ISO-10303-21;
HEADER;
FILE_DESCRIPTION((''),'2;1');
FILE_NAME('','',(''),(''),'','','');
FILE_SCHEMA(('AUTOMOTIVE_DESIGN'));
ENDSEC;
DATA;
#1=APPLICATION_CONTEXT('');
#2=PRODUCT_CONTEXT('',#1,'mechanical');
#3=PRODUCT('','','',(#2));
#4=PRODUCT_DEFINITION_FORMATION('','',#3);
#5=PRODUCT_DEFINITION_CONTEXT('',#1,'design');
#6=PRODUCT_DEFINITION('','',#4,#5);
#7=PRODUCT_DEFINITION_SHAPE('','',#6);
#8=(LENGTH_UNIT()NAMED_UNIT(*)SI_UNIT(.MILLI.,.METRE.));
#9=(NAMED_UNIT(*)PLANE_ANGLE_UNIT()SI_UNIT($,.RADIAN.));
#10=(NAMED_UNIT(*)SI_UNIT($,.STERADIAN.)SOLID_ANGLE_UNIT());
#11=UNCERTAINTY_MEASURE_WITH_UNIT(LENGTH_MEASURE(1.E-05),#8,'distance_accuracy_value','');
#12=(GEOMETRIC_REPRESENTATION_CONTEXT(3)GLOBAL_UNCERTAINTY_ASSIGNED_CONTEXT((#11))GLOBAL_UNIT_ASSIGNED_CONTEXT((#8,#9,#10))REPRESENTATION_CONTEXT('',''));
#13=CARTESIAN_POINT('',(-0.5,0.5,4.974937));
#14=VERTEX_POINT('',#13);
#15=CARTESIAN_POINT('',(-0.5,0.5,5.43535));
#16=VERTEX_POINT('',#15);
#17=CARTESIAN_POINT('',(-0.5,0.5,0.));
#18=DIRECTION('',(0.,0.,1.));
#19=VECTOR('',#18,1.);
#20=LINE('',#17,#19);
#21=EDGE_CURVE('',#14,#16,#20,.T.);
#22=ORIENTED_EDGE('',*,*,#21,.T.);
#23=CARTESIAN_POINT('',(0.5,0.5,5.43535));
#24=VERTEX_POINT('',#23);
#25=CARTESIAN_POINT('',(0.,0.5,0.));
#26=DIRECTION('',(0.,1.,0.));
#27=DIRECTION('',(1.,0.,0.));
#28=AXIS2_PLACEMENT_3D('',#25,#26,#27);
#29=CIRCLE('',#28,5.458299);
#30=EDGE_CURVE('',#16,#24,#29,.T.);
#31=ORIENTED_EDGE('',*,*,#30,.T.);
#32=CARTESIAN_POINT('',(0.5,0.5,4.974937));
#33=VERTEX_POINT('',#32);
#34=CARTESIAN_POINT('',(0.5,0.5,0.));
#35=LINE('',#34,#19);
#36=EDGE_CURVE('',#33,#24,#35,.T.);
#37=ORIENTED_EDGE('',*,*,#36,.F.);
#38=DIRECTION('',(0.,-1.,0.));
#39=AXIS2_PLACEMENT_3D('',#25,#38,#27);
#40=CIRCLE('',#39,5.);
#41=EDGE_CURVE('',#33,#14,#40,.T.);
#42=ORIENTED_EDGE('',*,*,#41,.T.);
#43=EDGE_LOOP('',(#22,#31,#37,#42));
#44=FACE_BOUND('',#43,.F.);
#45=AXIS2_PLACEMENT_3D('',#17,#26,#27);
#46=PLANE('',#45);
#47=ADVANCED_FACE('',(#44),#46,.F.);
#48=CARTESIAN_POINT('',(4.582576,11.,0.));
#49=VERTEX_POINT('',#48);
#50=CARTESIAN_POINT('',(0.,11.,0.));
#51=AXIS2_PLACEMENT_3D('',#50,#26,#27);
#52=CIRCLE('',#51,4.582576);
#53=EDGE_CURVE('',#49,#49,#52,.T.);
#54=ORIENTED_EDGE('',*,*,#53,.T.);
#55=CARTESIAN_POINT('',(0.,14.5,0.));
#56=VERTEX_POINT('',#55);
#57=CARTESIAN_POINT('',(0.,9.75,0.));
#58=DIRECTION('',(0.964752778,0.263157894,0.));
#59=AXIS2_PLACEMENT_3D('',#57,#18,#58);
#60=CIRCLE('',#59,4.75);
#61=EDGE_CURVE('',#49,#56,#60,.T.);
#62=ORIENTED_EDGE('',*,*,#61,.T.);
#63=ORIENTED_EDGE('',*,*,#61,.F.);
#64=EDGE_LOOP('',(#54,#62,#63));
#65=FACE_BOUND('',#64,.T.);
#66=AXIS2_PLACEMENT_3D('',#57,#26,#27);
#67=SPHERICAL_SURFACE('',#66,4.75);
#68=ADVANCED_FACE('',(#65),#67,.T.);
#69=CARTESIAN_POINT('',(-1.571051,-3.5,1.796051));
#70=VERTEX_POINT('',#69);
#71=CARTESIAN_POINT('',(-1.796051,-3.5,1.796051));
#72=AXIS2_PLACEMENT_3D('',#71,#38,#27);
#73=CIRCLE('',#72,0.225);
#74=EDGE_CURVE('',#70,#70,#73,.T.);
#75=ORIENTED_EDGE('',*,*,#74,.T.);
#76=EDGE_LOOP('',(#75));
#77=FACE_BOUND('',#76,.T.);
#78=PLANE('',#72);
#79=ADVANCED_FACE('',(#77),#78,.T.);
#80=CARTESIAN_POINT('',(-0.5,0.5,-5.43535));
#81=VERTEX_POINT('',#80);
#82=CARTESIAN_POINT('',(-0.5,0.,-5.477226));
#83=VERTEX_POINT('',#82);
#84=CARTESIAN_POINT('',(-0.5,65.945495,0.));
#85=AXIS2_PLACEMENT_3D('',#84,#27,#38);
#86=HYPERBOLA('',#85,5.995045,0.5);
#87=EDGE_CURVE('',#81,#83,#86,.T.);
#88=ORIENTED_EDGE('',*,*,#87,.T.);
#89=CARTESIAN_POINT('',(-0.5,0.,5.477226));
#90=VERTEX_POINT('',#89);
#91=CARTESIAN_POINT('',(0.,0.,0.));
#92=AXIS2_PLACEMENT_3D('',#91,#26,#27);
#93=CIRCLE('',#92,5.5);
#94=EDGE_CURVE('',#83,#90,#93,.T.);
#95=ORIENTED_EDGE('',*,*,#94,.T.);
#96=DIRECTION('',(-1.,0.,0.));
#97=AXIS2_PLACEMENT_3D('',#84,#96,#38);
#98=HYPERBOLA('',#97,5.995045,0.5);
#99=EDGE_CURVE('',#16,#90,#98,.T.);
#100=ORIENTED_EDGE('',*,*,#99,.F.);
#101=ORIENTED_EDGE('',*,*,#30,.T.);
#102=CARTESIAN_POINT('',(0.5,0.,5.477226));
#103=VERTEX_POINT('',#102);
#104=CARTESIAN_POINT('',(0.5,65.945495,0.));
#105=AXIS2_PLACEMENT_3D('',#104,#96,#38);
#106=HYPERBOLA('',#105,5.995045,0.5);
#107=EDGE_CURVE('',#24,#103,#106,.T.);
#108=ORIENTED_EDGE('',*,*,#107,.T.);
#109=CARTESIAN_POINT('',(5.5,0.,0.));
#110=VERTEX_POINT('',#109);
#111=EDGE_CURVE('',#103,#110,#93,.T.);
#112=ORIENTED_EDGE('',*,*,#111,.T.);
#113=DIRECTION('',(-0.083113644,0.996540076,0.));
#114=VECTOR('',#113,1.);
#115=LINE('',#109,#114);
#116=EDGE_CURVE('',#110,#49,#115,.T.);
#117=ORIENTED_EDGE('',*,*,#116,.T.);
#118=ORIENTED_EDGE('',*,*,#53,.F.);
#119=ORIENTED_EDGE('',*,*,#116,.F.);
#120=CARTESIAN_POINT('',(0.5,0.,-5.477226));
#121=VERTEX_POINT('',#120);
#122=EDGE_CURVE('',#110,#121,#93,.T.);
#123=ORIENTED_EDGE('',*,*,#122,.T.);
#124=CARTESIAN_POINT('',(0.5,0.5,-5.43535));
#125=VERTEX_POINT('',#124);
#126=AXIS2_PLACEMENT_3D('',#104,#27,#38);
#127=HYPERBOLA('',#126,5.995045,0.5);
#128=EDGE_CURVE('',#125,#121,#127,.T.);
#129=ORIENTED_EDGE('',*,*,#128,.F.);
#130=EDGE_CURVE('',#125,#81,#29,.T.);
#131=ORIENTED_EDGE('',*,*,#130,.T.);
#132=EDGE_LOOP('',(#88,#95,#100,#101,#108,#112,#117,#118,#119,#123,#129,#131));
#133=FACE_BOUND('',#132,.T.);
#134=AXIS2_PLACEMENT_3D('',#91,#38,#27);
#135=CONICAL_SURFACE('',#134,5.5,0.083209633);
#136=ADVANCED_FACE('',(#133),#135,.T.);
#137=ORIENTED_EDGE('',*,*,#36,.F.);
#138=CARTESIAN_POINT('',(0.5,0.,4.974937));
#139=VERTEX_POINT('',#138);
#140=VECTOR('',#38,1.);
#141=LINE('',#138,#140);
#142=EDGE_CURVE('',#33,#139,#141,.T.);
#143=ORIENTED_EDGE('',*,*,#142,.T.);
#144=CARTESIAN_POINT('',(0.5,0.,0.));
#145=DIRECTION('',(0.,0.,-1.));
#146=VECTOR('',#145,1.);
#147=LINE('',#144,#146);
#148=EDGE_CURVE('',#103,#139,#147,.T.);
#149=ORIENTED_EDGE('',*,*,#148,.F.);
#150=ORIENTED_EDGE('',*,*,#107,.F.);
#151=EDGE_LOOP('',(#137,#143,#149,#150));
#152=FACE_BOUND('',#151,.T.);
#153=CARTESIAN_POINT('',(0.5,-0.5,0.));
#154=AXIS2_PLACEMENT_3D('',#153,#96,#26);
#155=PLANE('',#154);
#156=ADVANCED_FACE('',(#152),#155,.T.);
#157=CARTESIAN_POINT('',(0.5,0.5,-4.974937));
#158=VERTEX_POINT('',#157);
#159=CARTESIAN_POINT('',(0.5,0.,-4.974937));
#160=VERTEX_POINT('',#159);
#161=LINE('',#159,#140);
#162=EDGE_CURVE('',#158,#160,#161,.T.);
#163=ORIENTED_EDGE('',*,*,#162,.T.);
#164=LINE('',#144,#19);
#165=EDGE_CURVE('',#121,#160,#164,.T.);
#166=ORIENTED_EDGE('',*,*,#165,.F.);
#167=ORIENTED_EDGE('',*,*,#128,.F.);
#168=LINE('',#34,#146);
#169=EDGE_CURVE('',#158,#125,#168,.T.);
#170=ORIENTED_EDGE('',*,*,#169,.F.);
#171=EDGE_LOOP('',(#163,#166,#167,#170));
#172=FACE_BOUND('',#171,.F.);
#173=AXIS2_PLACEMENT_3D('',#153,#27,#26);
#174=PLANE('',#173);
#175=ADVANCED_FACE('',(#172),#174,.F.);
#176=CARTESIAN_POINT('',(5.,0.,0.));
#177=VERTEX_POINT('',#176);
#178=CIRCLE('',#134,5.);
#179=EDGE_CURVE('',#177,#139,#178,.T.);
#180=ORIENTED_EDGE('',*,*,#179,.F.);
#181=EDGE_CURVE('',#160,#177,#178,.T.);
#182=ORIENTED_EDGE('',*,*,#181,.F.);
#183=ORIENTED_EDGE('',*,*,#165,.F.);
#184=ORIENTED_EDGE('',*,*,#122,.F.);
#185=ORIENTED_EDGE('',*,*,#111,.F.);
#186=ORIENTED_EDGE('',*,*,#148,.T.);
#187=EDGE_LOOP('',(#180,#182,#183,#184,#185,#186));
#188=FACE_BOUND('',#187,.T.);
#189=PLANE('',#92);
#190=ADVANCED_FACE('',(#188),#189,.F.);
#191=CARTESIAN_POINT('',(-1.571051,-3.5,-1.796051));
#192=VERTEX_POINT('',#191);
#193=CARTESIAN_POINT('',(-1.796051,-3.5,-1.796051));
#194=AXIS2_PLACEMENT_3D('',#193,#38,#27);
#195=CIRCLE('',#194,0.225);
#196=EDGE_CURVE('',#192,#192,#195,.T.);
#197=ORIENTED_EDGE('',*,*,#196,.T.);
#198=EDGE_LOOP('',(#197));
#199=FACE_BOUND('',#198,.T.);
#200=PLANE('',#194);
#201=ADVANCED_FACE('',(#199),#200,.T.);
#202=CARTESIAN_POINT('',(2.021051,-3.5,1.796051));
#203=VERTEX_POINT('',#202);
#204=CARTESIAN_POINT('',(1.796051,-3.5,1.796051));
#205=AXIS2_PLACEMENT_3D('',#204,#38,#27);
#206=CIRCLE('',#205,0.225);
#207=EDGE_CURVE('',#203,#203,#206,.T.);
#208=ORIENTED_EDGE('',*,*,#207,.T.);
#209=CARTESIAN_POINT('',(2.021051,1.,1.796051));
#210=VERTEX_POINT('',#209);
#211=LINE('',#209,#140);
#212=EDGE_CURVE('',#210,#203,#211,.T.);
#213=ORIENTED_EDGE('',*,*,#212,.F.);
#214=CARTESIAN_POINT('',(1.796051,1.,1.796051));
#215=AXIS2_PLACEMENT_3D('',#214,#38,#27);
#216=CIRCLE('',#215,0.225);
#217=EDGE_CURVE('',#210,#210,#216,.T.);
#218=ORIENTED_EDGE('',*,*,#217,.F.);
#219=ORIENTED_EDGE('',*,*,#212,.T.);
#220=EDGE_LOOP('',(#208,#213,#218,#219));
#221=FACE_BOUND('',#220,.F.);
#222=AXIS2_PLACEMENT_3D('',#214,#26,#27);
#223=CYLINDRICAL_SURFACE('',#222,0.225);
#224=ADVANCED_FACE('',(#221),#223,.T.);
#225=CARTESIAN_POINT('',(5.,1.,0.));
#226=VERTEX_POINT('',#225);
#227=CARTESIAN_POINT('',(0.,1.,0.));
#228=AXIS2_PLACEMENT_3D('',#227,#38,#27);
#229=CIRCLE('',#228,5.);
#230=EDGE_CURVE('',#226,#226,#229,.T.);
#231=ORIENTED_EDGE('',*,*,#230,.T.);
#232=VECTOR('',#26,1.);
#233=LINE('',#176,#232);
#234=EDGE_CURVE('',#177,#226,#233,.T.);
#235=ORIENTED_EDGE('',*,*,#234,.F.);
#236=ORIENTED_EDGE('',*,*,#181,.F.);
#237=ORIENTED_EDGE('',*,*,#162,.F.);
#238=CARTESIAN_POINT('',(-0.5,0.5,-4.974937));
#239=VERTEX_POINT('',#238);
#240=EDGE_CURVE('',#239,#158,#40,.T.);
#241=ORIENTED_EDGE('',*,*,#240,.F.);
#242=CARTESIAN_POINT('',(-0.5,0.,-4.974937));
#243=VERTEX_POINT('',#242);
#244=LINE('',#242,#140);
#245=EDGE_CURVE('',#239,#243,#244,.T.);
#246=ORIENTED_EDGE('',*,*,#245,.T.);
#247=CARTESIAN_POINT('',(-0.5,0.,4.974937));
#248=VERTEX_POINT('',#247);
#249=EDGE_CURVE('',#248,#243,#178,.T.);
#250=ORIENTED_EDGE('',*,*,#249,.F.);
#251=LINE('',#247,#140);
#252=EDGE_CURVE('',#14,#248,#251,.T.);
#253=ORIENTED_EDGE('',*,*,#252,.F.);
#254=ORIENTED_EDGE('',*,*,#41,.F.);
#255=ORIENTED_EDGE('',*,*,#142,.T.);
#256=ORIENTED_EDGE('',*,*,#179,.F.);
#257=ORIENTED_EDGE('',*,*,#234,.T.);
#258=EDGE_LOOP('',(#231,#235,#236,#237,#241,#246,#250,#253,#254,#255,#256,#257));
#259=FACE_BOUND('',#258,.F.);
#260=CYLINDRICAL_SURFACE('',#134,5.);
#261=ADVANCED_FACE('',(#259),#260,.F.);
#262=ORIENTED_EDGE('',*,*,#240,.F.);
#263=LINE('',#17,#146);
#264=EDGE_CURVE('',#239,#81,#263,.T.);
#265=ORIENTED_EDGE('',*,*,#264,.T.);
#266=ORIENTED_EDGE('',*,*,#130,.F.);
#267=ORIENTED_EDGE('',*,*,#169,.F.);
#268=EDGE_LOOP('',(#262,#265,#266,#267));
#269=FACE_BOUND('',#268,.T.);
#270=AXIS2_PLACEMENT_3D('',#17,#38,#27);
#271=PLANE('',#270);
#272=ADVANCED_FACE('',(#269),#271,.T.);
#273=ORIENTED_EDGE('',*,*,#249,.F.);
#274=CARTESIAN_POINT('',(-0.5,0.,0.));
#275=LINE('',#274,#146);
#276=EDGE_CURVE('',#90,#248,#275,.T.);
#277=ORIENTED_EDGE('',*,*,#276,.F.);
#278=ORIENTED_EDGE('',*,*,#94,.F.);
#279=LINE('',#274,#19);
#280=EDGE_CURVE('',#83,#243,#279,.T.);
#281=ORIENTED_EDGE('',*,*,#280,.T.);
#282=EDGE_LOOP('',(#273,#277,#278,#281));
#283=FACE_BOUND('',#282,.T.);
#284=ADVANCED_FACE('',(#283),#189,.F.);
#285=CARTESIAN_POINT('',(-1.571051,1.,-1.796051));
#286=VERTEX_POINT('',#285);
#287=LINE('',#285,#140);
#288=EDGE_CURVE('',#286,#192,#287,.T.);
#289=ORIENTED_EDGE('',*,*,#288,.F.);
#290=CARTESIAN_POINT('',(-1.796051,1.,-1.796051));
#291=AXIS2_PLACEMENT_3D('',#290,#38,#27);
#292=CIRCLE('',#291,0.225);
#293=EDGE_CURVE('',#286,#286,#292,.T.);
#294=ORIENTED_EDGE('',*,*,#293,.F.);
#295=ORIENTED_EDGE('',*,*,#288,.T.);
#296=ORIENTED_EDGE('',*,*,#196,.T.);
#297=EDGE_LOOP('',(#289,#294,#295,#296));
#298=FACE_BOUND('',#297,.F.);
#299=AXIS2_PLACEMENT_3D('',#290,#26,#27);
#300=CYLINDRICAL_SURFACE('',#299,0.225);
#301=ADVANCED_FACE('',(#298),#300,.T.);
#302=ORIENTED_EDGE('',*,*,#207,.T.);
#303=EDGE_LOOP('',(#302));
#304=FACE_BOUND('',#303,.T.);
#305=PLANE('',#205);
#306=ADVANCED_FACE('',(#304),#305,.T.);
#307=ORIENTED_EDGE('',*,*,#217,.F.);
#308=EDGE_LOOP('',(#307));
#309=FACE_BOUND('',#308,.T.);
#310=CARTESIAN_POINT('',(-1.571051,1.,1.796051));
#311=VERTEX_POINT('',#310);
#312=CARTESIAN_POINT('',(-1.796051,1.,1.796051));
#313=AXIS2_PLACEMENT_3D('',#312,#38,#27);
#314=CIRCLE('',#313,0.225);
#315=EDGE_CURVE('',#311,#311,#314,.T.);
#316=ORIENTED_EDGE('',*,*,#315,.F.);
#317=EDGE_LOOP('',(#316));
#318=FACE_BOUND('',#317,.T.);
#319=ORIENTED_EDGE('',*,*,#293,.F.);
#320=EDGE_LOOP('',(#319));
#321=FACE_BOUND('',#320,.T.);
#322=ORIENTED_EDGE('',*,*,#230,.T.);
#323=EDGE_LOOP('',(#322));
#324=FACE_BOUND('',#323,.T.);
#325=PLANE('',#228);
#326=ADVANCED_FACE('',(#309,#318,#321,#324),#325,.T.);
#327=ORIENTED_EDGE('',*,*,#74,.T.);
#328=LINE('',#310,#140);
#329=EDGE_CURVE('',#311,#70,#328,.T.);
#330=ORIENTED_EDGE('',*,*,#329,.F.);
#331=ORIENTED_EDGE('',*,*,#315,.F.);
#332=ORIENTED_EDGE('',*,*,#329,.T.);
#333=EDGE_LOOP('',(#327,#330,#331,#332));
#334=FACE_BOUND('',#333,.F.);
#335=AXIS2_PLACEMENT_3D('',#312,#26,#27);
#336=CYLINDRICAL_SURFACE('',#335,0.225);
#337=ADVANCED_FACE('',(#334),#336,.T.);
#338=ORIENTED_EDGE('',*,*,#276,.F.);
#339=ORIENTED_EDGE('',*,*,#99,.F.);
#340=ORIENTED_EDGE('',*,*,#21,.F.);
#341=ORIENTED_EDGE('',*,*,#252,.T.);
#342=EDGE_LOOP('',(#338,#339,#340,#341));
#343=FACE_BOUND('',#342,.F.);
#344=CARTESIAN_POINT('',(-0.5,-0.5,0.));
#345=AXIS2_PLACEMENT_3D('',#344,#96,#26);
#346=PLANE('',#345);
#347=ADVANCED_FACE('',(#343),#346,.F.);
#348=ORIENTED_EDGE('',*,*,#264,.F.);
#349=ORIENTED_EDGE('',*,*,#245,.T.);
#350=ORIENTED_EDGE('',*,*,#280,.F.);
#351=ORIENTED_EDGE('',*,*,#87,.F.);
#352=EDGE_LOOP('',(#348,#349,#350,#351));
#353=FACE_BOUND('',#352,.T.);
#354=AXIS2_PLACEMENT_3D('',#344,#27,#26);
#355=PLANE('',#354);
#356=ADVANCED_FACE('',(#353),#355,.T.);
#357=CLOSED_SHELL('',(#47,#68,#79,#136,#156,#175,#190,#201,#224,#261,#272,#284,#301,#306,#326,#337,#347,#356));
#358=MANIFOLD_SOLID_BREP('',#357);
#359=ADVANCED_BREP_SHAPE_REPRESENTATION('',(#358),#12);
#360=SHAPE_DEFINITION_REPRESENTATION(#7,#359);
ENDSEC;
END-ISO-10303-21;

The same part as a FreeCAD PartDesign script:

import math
import FreeCAD as App
import Part
import Sketcher
from FreeCAD import Vector
Q = App.Units.Quantity


def add_polygon(sketch, points):
    """Adds a closed chain of lines whose ends are joined by coincident constraints."""
    first, n = sketch.GeometryCount, len(points)
    for a, b in zip(points, points[1:] + points[:1]):
        sketch.addGeometry(Part.LineSegment(App.Vector(*a, 0), App.Vector(*b, 0)), False)
    for i in range(n):
        sketch.addConstraint(Sketcher.Constraint("Coincident", first + i, 2, first + (i + 1) % n, 1))

doc = App.newDocument("Part")
params = doc.addObject("Spreadsheet::Sheet", "Params")
for row, (alias, value) in enumerate([
    ("sketch1_radius", "4.75 mm"),
    ("sketch1_width", "5.5 mm"),
    ("sketch1_height", "14.5 mm"),
    ("revolution_angle", "360 deg"),
    ("sketch2_diameter", "10 mm"),
    ("pocket1_length", "1 mm"),
    ("sketch3_width", "1 mm"),
    ("sketch4_diameter", "0.45 mm"),
    ("pad1_length", "4.5 mm"),
], start=1):
    params.set(f"A{row}", alias)
    params.set(f"B{row}", "=" + value)
    params.setAlias(f"B{row}", alias)

body = doc.addObject("PartDesign::Body", "Body")

# Sketch on XY plane
sketch1 = doc.addObject("Sketcher::SketchObject", "Sketch")
body.addObject(sketch1)
sketch1.AttachmentSupport = (doc.XY_Plane, [""])
sketch1.MapMode = "FlatFace"
sketch1.addGeometry([
    Part.LineSegment(Vector(0, 0, 0), Vector(5.5, 0, 0)),
    Part.LineSegment(Vector(5.5, 0, 0), Vector(4.582576, 11, 0)),
    Part.ArcOfCircle(Part.Circle(Vector(0, 9.75, 0), Vector(0, 0, 1), 4.75), math.radians(15.257523), math.radians(90)),
    Part.LineSegment(Vector(0, 14.5, 0), Vector(0, 0, 0)),
], False)
sketch1.addConstraint([
    Sketcher.Constraint("Coincident", 0, 2, 1, 1),
    Sketcher.Constraint("Coincident", 1, 2, 2, 1),
    Sketcher.Constraint("Coincident", 2, 2, 3, 1),
    Sketcher.Constraint("Coincident", 3, 2, 0, 1),
    Sketcher.Constraint("Horizontal", 0),
    Sketcher.Constraint("Vertical", 3),
    Sketcher.Constraint("Coincident", 3, 2, -1, 1),
    Sketcher.Constraint("PointOnObject", 2, 3, -2),
    Sketcher.Constraint("Radius", 2, Q("4.75 mm")),
    Sketcher.Constraint("DistanceX", 0, 1, 0, 2, Q("5.5 mm")),
    Sketcher.Constraint("DistanceY", 3, 2, 3, 1, Q("14.5 mm")),
    Sketcher.Constraint("DistanceY", -1, 1, 1, 2, Q("11 mm")),
])
sketch1.setExpression("Constraints[8]", "Params.sketch1_radius")
sketch1.setExpression("Constraints[9]", "Params.sketch1_width")
sketch1.setExpression("Constraints[10]", "Params.sketch1_height")
revolution = doc.addObject("PartDesign::Revolution", "Revolution")
body.addObject(revolution)
revolution.Profile = sketch1
revolution.ReferenceAxis = (sketch1, ["V_Axis"])
revolution.setExpression("Angle", "Params.revolution_angle")

# Sketch on XZ plane
sketch2 = doc.addObject("Sketcher::SketchObject", "Sketch001")
body.addObject(sketch2)
sketch2.AttachmentSupport = (doc.XZ_Plane, [""])
sketch2.MapMode = "FlatFace"
sketch2.addGeometry(Part.Circle(Vector(0, 0, 0), Vector(0, 0, 1), 5), False)
sketch2.addConstraint([
    Sketcher.Constraint("Coincident", 0, 3, -1, 1),
    Sketcher.Constraint("Diameter", 0, Q("10 mm")),
])
sketch2.setExpression("Constraints[1]", "Params.sketch2_diameter")
pocket1 = doc.addObject("PartDesign::Pocket", "Pocket")
body.addObject(pocket1)
pocket1.Profile = sketch2
pocket1.setExpression("Length", "Params.pocket1_length")

# Sketch on XY plane
sketch3 = doc.addObject("Sketcher::SketchObject", "Sketch002")
body.addObject(sketch3)
sketch3.AttachmentSupport = (doc.XY_Plane, [""])
sketch3.MapMode = "FlatFace"
add_polygon(sketch3, [(-0.5, 0.5), (-0.5, -0.5), (0.5, -0.5), (0.5, 0.5)])  # lines 0-3
sketch3.addConstraint([
    Sketcher.Constraint("Vertical", 0),
    Sketcher.Constraint("Horizontal", 1),
    Sketcher.Constraint("Vertical", 2),
    Sketcher.Constraint("Horizontal", 3),
    Sketcher.Constraint("Symmetric", 0, 2, 2, 2, -1, 1),
    Sketcher.Constraint("Equal", 3, 0),
    Sketcher.Constraint("DistanceX", 1, 1, 1, 2, Q("1 mm")),
])
sketch3.setExpression("Constraints[10]", "Params.sketch3_width")
pocket2 = doc.addObject("PartDesign::Pocket", "Pocket001")
body.addObject(pocket2)
pocket2.Profile = sketch3
pocket2.Type = "ThroughAll"
pocket2.Midplane = True

# Sketch on XZ plane
sketch4 = doc.addObject("Sketcher::SketchObject", "Sketch003")
body.addObject(sketch4)
sketch4.AttachmentSupport = (doc.XZ_Plane, [""])
sketch4.MapMode = "FlatFace"
sketch4.AttachmentOffset = App.Placement(Vector(0, 0, -1), App.Rotation())
sketch4.addGeometry([
    Part.Circle(Vector(1.796051, 1.796051, 0), Vector(0, 0, 1), 0.225),
    Part.Circle(Vector(-1.796051, 1.796051, 0), Vector(0, 0, 1), 0.225),
    Part.Circle(Vector(-1.796051, -1.796051, 0), Vector(0, 0, 1), 0.225),
], False)
sketch4.addConstraint([
    Sketcher.Constraint("Equal", 0, 1),
    Sketcher.Constraint("Equal", 1, 2),
    Sketcher.Constraint("Symmetric", 0, 3, 2, 3, -1, 1),
    Sketcher.Constraint("Symmetric", 0, 3, 1, 3, -2),
    Sketcher.Constraint("Diameter", 0, Q("0.45 mm")),
    Sketcher.Constraint("DistanceX", -1, 1, 0, 3, Q("1.796051 mm")),
    Sketcher.Constraint("DistanceY", -1, 1, 0, 3, Q("1.796051 mm")),
])
sketch4.setExpression("Constraints[4]", "Params.sketch4_diameter")
pad1 = doc.addObject("PartDesign::Pad", "Pad")
body.addObject(pad1)
pad1.Profile = sketch4
pad1.setExpression("Length", "Params.pad1_length")

doc.recompute()
